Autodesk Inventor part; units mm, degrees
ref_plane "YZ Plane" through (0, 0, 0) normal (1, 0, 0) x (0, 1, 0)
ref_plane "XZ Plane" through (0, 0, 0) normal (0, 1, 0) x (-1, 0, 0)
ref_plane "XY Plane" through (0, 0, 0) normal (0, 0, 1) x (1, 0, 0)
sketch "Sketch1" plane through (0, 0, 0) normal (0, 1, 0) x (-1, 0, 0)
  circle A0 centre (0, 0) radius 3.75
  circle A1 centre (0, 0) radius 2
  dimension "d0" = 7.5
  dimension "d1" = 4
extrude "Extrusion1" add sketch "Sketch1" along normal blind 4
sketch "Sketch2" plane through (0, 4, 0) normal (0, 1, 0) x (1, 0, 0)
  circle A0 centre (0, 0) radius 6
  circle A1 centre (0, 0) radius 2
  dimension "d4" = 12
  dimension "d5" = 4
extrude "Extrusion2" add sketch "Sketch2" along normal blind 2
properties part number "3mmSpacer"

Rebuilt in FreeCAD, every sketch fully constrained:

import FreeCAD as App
import Part
import Sketcher

V = App.Vector
Q = App.Units.Quantity

doc = App.newDocument("Part")
body = doc.addObject("PartDesign::Body", "Body")

# Sketch on XZ plane
sketch1 = body.newObject("Sketcher::SketchObject", "Sketch")
sketch1.AttachmentSupport = (doc.getObject("XZ_Plane"), [""])
sketch1.MapMode = "FlatFace"
sketch1.addGeometry(Part.Circle(V(0, 0, 0), V(0, 0, 1), 3.8), False)
sketch1.addGeometry(Part.Circle(V(0, 0, 0), V(0, 0, 1), 2), False)
sketch1.addConstraint(Sketcher.Constraint("Coincident", 0, 3, -1, 1))
sketch1.addConstraint(Sketcher.Constraint("Coincident", 1, 3, -1, 1))
sketch1.addConstraint(Sketcher.Constraint("Diameter", 1, Q("4 mm")))
sketch1.addConstraint(Sketcher.Constraint("Diameter", 0, Q("7.5 mm")))
pad1 = body.newObject("PartDesign::Pad", "Pad")
pad1.Profile = sketch1
pad1.Length = 4
pad1.Reversed = True

# Sketch on XZ plane
sketch2 = body.newObject("Sketcher::SketchObject", "Sketch001")
sketch2.AttachmentSupport = (doc.getObject("XZ_Plane"), [""])
sketch2.MapMode = "FlatFace"
sketch2.AttachmentOffset = App.Placement(V(0, 0, -4), App.Rotation())
sketch2.addGeometry(Part.Circle(V(0, 0, 0), V(0, 0, 1), 6), False)
sketch2.addGeometry(Part.Circle(V(0, 0, 0), V(0, 0, 1), 2), False)
sketch2.addConstraint(Sketcher.Constraint("Coincident", 0, 3, -1, 1))
sketch2.addConstraint(Sketcher.Constraint("Coincident", 1, 3, -1, 1))
sketch2.addConstraint(Sketcher.Constraint("Diameter", 0, Q("12 mm")))
sketch2.addConstraint(Sketcher.Constraint("Diameter", 1, Q("4 mm")))
pad2 = body.newObject("PartDesign::Pad", "Pad001")
pad2.Profile = sketch2
pad2.Length = 2
pad2.Reversed = True

doc.recompute()
